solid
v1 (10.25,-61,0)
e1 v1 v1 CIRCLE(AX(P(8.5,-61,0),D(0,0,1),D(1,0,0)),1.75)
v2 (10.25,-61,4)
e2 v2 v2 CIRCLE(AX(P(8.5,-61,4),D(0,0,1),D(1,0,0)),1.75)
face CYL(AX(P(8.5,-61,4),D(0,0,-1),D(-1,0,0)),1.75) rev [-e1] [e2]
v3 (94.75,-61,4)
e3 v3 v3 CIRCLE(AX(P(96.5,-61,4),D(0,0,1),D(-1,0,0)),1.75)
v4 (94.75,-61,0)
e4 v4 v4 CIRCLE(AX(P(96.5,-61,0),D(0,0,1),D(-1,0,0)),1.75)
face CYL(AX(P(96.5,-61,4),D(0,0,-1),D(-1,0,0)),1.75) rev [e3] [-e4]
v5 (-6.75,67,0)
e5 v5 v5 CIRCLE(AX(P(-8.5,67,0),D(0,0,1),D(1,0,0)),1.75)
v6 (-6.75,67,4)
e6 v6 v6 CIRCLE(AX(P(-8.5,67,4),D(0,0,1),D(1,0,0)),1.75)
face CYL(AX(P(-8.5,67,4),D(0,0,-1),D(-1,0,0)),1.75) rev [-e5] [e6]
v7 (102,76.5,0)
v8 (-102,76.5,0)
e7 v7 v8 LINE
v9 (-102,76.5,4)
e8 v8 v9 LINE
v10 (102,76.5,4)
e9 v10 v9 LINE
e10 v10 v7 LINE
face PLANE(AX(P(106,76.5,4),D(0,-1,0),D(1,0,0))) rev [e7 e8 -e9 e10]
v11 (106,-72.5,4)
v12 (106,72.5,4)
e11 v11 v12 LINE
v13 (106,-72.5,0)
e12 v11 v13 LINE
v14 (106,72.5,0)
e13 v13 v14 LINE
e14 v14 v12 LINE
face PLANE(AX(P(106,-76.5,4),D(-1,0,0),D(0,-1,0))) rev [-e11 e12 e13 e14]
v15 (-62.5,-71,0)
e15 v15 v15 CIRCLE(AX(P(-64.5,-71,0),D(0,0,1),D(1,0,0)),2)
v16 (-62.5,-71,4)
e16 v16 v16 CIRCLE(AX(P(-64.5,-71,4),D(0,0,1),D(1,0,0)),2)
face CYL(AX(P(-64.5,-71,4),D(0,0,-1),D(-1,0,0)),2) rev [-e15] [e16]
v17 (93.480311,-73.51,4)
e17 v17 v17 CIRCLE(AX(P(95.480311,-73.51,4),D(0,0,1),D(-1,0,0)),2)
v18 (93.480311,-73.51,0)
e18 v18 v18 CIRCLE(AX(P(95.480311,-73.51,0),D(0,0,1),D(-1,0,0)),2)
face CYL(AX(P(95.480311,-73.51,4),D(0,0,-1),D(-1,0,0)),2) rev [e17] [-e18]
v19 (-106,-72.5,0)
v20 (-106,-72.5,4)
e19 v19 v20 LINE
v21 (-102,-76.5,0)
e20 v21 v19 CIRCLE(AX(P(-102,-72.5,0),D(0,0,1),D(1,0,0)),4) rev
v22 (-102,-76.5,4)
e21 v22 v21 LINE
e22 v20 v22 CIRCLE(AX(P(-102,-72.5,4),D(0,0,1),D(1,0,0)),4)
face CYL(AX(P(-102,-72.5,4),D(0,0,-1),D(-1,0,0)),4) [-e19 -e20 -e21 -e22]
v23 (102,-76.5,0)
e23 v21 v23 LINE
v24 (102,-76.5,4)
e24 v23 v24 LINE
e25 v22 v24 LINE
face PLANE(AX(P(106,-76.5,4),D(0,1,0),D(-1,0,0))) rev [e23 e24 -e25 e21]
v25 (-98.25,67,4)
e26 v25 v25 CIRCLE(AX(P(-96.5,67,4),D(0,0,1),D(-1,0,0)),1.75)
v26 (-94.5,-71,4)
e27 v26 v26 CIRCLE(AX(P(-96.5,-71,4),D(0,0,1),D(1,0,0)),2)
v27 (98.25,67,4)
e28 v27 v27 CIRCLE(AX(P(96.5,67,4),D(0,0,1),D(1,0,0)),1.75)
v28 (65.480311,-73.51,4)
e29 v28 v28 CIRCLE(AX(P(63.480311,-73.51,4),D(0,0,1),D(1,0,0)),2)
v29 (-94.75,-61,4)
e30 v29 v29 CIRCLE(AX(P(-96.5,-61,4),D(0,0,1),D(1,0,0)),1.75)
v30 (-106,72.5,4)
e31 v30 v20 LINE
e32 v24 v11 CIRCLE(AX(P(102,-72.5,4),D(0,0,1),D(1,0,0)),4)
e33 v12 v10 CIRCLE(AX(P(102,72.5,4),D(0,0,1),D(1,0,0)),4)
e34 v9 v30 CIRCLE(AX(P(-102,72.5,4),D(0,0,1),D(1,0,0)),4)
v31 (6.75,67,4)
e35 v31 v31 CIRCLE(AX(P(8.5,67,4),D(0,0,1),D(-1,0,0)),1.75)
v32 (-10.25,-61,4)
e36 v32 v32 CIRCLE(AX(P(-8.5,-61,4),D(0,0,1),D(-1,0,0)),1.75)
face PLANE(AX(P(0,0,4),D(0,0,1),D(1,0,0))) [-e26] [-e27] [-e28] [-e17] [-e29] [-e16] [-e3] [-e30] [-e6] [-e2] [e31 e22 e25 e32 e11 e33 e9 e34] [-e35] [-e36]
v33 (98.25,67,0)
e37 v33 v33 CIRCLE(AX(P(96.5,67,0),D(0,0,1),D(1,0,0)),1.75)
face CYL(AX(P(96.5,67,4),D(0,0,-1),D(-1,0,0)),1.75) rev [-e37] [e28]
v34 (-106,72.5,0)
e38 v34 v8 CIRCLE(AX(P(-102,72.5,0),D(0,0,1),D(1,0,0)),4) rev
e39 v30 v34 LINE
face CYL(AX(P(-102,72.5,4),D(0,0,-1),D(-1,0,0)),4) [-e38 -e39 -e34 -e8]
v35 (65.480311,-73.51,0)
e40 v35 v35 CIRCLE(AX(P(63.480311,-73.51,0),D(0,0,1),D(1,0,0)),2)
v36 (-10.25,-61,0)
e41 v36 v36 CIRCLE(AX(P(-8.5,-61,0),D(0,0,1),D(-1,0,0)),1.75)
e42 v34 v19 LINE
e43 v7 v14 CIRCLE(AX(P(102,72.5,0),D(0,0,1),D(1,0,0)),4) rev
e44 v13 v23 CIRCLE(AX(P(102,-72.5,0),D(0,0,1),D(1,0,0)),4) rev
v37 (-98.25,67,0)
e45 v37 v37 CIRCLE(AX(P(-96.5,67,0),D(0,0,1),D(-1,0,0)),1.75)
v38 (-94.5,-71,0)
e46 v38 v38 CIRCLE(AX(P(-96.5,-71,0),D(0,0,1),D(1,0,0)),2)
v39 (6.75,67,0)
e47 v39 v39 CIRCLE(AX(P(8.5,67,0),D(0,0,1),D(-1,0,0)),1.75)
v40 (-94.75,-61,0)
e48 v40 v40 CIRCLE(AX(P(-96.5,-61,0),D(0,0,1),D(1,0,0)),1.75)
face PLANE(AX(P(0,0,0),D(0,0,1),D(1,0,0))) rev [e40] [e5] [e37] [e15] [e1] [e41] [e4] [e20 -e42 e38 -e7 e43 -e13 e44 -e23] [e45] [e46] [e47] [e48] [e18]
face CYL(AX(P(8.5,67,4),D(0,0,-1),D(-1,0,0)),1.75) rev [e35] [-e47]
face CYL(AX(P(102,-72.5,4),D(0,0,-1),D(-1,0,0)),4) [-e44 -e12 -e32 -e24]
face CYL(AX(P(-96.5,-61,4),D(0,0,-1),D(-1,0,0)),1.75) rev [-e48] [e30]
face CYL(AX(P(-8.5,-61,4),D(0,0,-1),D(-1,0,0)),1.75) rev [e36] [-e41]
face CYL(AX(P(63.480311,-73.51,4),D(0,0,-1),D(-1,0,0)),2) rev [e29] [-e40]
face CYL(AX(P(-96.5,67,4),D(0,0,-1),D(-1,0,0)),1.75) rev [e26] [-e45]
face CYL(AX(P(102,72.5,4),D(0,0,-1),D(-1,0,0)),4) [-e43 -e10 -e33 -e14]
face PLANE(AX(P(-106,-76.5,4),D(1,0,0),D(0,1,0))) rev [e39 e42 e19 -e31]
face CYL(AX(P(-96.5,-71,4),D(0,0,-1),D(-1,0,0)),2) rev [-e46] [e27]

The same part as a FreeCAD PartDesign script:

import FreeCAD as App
import Part
import Sketcher
Q = App.Units.Quantity


def edges_at(feature, points):
    """Names of the edges that pass closest to the given points."""
    edges = feature.Shape.Edges
    near = lambda p: min(range(len(edges)), key=lambda i: edges[i].distToShape(Part.Vertex(*p))[0])
    return sorted({f"Edge{near(p) + 1}" for p in points})


def add_polygon(sketch, points):
    """Adds a closed chain of lines whose ends are joined by coincident constraints."""
    first, n = sketch.GeometryCount, len(points)
    for a, b in zip(points, points[1:] + points[:1]):
        sketch.addGeometry(Part.LineSegment(App.Vector(*a, 0), App.Vector(*b, 0)), False)
    for i in range(n):
        sketch.addConstraint(Sketcher.Constraint("Coincident", first + i, 2, first + (i + 1) % n, 1))

doc = App.newDocument("Part")
body = doc.addObject("PartDesign::Body", "Body")

# Sketch on XY plane
sketch1 = doc.addObject("Sketcher::SketchObject", "Sketch")
body.addObject(sketch1)
sketch1.AttachmentSupport = (doc.XY_Plane, [""])
sketch1.MapMode = "FlatFace"
add_polygon(sketch1, [(-106, 76.5), (-106, -76.5), (106, -76.5), (106, 76.5)])  # lines 0-3
sketch1.addGeometry(Part.Circle(App.Vector(-96.5, -71, 0), App.Vector(0, 0, 1), 2), False)  # 4
sketch1.addGeometry(Part.Circle(App.Vector(-96.5, -61, 0), App.Vector(0, 0, 1), 1.75), False)  # 5
sketch1.addGeometry(Part.Circle(App.Vector(-64.5, -71, 0), App.Vector(0, 0, 1), 2), False)  # 6
sketch1.addGeometry(Part.Circle(App.Vector(-8.5, -61, 0), App.Vector(0, 0, 1), 1.75), False)  # 7
sketch1.addGeometry(Part.Circle(App.Vector(8.5, -61, 0), App.Vector(0, 0, 1), 1.75), False)  # 8
sketch1.addGeometry(Part.Circle(App.Vector(63.480311, -73.51, 0), App.Vector(0, 0, 1), 2), False)  # 9
sketch1.addGeometry(Part.Circle(App.Vector(95.480311, -73.51, 0), App.Vector(0, 0, 1), 2), False)  # 10
sketch1.addGeometry(Part.Circle(App.Vector(96.5, -61, 0), App.Vector(0, 0, 1), 1.75), False)  # 11
sketch1.addGeometry(Part.Circle(App.Vector(-96.5, 67, 0), App.Vector(0, 0, 1), 1.75), False)  # 12
sketch1.addGeometry(Part.Circle(App.Vector(-8.5, 67, 0), App.Vector(0, 0, 1), 1.75), False)  # 13
sketch1.addGeometry(Part.Circle(App.Vector(8.5, 67, 0), App.Vector(0, 0, 1), 1.75), False)  # 14
sketch1.addGeometry(Part.Circle(App.Vector(96.5, 67, 0), App.Vector(0, 0, 1), 1.75), False)  # 15
sketch1.addConstraint([
    Sketcher.Constraint("Vertical", 0),
    Sketcher.Constraint("Horizontal", 1),
    Sketcher.Constraint("Vertical", 2),
    Sketcher.Constraint("Horizontal", 3),
    Sketcher.Constraint("Equal", 4, 6),
    Sketcher.Constraint("Equal", 5, 7),
    Sketcher.Constraint("Equal", 7, 8),
    Sketcher.Constraint("Equal", 6, 9),
    Sketcher.Constraint("Equal", 9, 10),
    Sketcher.Constraint("Equal", 8, 11),
    Sketcher.Constraint("Equal", 11, 12),
    Sketcher.Constraint("Equal", 12, 13),
    Sketcher.Constraint("Equal", 13, 14),
    Sketcher.Constraint("Equal", 14, 15),
    Sketcher.Constraint("Symmetric", 0, 2, 2, 2, -1, 1),
    Sketcher.Constraint("Symmetric", 7, 3, 8, 3, -2),
    Sketcher.Constraint("Symmetric", 5, 3, 11, 3, -2),
    Sketcher.Constraint("Symmetric", 13, 3, 14, 3, -2),
    Sketcher.Constraint("Symmetric", 12, 3, 15, 3, -2),
    Sketcher.Constraint("Horizontal", 4, 3, 6, 3),
    Sketcher.Constraint("Horizontal", 5, 3, 7, 3),
    Sketcher.Constraint("Horizontal", 9, 3, 10, 3),
    Sketcher.Constraint("Horizontal", 12, 3, 13, 3),
    Sketcher.Constraint("Vertical", 4, 3, 5, 3),
    Sketcher.Constraint("Vertical", 5, 3, 12, 3),
    Sketcher.Constraint("Vertical", 7, 3, 13, 3),
    Sketcher.Constraint("Diameter", 4, Q("4 mm")),
    Sketcher.Constraint("Diameter", 5, Q("3.5 mm")),
    Sketcher.Constraint("DistanceX", 1, 1, 1, 2, Q("212 mm")),
    Sketcher.Constraint("DistanceY", 0, 2, 0, 1, Q("153 mm")),
    Sketcher.Constraint("DistanceY", 4, 3, -1, 1, Q("71 mm")),
    Sketcher.Constraint("DistanceY", 5, 3, -1, 1, Q("61 mm")),
    Sketcher.Constraint("DistanceY", -1, 1, 12, 3, Q("67 mm")),
    Sketcher.Constraint("DistanceX", 4, 3, 6, 3, Q("32 mm")),
    Sketcher.Constraint("DistanceX", 6, 3, 7, 3, Q("56 mm")),
    Sketcher.Constraint("DistanceX", 7, 3, 8, 3, Q("17 mm")),
    Sketcher.Constraint("DistanceX", 9, 3, 10, 3, Q("32 mm")),
    Sketcher.Constraint("DistanceY", 9, 3, -1, 1, Q("73.51 mm")),
    Sketcher.Constraint("DistanceX", -1, 1, 9, 3, Q("63.480311 mm")),
])
pad1 = doc.addObject("PartDesign::Pad", "Pad")
body.addObject(pad1)
pad1.Profile = sketch1
pad1.Length = 4
doc.recompute()

fillet = doc.addObject("PartDesign::Fillet", "Fillet")
body.addObject(fillet)
fillet.Base = (pad1, edges_at(pad1, [
    (-106, 76.5, 2),
    (106, 76.5, 2),
    (106, -76.5, 2),
    (-106, -76.5, 2),
]))
fillet.Radius = 4

doc.recompute()
